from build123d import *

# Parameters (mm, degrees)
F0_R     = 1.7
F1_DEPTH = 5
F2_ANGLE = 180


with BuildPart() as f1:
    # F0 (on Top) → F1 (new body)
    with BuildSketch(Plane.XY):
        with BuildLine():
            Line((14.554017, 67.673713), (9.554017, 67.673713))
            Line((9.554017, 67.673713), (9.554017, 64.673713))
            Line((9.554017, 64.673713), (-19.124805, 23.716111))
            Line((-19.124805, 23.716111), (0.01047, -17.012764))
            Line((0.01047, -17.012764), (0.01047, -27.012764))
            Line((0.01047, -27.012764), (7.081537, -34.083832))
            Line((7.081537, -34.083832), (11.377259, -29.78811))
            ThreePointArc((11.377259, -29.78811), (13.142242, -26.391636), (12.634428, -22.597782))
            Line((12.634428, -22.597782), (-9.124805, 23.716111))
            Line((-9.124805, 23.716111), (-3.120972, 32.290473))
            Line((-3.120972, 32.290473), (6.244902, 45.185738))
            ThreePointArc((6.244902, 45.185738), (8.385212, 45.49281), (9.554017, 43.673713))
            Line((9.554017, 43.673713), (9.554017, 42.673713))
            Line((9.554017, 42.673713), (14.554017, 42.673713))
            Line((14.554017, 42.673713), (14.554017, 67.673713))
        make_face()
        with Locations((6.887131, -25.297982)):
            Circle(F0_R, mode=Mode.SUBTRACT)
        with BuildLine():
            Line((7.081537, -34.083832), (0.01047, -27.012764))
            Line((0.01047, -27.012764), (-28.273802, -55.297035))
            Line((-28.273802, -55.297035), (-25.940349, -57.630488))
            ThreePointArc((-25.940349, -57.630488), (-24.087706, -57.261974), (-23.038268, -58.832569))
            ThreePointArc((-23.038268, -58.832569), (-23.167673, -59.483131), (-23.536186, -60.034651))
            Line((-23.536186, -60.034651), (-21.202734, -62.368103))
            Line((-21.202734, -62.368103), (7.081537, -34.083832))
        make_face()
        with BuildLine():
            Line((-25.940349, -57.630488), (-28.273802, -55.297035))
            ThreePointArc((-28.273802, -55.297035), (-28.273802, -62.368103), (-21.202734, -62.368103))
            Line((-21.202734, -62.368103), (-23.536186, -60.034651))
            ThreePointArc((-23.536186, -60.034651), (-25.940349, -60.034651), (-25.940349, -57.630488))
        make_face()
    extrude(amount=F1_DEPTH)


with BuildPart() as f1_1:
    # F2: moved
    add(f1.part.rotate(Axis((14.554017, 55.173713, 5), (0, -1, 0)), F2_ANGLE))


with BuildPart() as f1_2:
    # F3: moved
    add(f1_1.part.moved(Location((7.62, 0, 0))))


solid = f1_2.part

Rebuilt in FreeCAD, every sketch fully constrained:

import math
import FreeCAD as App
import Part
import Sketcher

V = App.Vector
Q = App.Units.Quantity

doc = App.newDocument("Part")
body = doc.addObject("PartDesign::Body", "Body")

sketch1 = body.newObject("Sketcher::SketchObject", "Sketch")
sketch1.AttachmentSupport = (doc.getObject("XY_Plane"), [""])
sketch1.MapMode = "FlatFace"
sketch1.addGeometry([
    Part.LineSegment(V(14.554017, 67.673713, 0), V(9.554017, 67.673713, 0)),
    Part.LineSegment(V(9.554017, 67.673713, 0), V(9.554017, 64.673713, 0)),
    Part.LineSegment(V(9.554017, 64.673713, 0), V(-19.124805, 23.716111, 0)),
    Part.LineSegment(V(-19.124805, 23.716111, 0), V(0.01047, -17.012764, 0)),
    Part.LineSegment(V(0.01047, -17.012764, 0), V(0.01047, -27.012764, 0)),
    Part.LineSegment(V(0.01047, -27.012764, 0), V(-28.273802, -55.297035, 0)),
    Part.ArcOfCircle(Part.Circle(V(-24.738268, -58.832569, 0), V(0, 0, 1), 5), math.radians(135), math.radians(315)),
    Part.LineSegment(V(-21.202734, -62.368103, 0), V(11.377259, -29.78811, 0)),
    Part.ArcOfCircle(Part.Circle(V(6.887128, -25.297981, 0), V(0, 0, 1), 6.350003), math.radians(-44.999984), math.radians(25.165097)),
    Part.LineSegment(V(12.634428, -22.597782, 0), V(-9.124805, 23.716111, 0)),
    Part.LineSegment(V(-9.124805, 23.716111, 0), V(-3.120972, 32.290473, 0)),
    Part.LineSegment(V(-3.120972, 32.290473, 0), V(6.244902, 45.185738, 0)),
    Part.ArcOfCircle(Part.Circle(V(7.554016, 43.673712, 0), V(0, 0, 1), 2.000001), math.radians(0.000018), math.radians(130.886072)),
    Part.LineSegment(V(9.554017, 43.673713, 0), V(9.554017, 42.673713, 0)),
    Part.LineSegment(V(9.554017, 42.673713, 0), V(14.554017, 42.673713, 0)),
    Part.LineSegment(V(14.554017, 42.673713, 0), V(14.554017, 67.673713, 0)),
    Part.ArcOfCircle(Part.Circle(V(-24.738267, -58.832569, 0), V(0, 0, 1), 1.699999), math.radians(-0.000007), math.radians(135.000018)),
    Part.ArcOfCircle(Part.Circle(V(-24.738274, -58.832567, 0), V(0, 0, 1), 1.700006), math.radians(-44.999895), math.radians(-0.000051)),
    Part.ArcOfCircle(Part.Circle(V(-24.738267, -58.832569, 0), V(0, 0, 1), 1.7), math.radians(135), math.radians(315)),
    Part.Circle(V(6.887131, -25.297982, 0), V(0, 0, 1), 1.7),
], False)
sketch1.addConstraint([
    Sketcher.Constraint("Coincident", 0, 2, 1, 1),
    Sketcher.Constraint("Coincident", 1, 2, 2, 1),
    Sketcher.Constraint("Coincident", 2, 2, 3, 1),
    Sketcher.Constraint("Coincident", 3, 2, 4, 1),
    Sketcher.Constraint("Coincident", 4, 2, 5, 1),
    Sketcher.Constraint("Coincident", 5, 2, 6, 1),
    Sketcher.Constraint("Coincident", 6, 2, 7, 1),
    Sketcher.Constraint("Coincident", 7, 2, 8, 1),
    Sketcher.Constraint("Coincident", 8, 2, 9, 1),
    Sketcher.Constraint("Coincident", 9, 2, 10, 1),
    Sketcher.Constraint("Coincident", 10, 2, 11, 1),
    Sketcher.Constraint("Coincident", 11, 2, 12, 2),
    Sketcher.Constraint("Coincident", 12, 1, 13, 1),
    Sketcher.Constraint("Coincident", 13, 2, 14, 1),
    Sketcher.Constraint("Coincident", 14, 2, 15, 1),
    Sketcher.Constraint("Coincident", 15, 2, 0, 1),
    Sketcher.Constraint("Coincident", 16, 1, 17, 2),
    Sketcher.Constraint("Coincident", 17, 1, 18, 2),
    Sketcher.Constraint("Coincident", 18, 1, 16, 2),
    Sketcher.Constraint("Horizontal", 0),
    Sketcher.Constraint("Vertical", 1),
    Sketcher.Constraint("Vertical", 4),
    Sketcher.Constraint("Vertical", 13),
    Sketcher.Constraint("Horizontal", 14),
    Sketcher.Constraint("Vertical", 15),
    Sketcher.Constraint("Coincident", 16, 3, 6, 3),
    Sketcher.Constraint("Coincident", 17, 3, 6, 3),
    Sketcher.Constraint("Coincident", 19, 3, 8, 3),
    Sketcher.Constraint("Radius", 6, Q("5 mm")),
    Sketcher.Constraint("Radius", 12, Q("2.000001 mm")),
    Sketcher.Constraint("Diameter", 19, Q("3.4 mm")),
    Sketcher.Constraint("Radius", 16, Q("1.699999 mm")),
    Sketcher.Constraint("DistanceX", 0, 2, 0, 1, Q("5 mm")),
    Sketcher.Constraint("DistanceX", 14, 1, 14, 2, Q("5 mm")),
    Sketcher.Constraint("DistanceY", 1, 2, 1, 1, Q("3 mm")),
    Sketcher.Constraint("DistanceY", 4, 2, 4, 1, Q("10 mm")),
    Sketcher.Constraint("DistanceY", 13, 2, 13, 1, Q("1 mm")),
    Sketcher.Constraint("DistanceY", 15, 1, 15, 2, Q("25 mm")),
    Sketcher.Constraint("Distance", 2, Q("50 mm")),
    Sketcher.Constraint("Distance", 3, Q("45 mm")),
    Sketcher.Constraint("Distance", 5, Q("40 mm")),
    Sketcher.Constraint("DistanceY", 12, 3, 0, 2, Q("24.000001 mm")),
    Sketcher.Constraint("DistanceX", 2, 2, 9, 2, Q("10 mm")),
    Sketcher.Constraint("DistanceX", 18, 3, 16, 1, Q("1.699999 mm")),
    Sketcher.Constraint("Radius", 8, Q("6.350003 mm")),
    Sketcher.Constraint("DistanceX", 5, 2, -1, 1, Q("28.273802 mm")),
    Sketcher.Constraint("DistanceX", -1, 1, 11, 2, Q("6.244902 mm")),
    Sketcher.Constraint("DistanceX", 17, 3, 8, 3, Q("31.625401 mm")),
    Sketcher.Constraint("DistanceY", 2, 2, 12, 3, Q("19.957601 mm")),
    Sketcher.Constraint("DistanceY", 19, 3, 8, 2, Q("2.7002 mm")),
    Sketcher.Constraint("DistanceY", 9, 2, 12, 3, Q("19.957601 mm")),
    Sketcher.Constraint("Distance", 11, Q("15.937611 mm")),
    Sketcher.Constraint("DistanceX", 6, 3, -1, 1, Q("24.738268 mm")),
    Sketcher.Constraint("DistanceY", 6, 3, -1, 1, Q("58.832569 mm")),
    Sketcher.Constraint("DistanceY", 8, 3, -1, 1, Q("25.297981 mm")),
    Sketcher.Constraint("DistanceY", -1, 1, 2, 2, Q("23.716111 mm")),
    Sketcher.Constraint("DistanceX", -1, 1, 3, 2, Q("0.01047 mm")),
    Sketcher.Constraint("DistanceX", -1, 1, 7, 2, Q("11.377259 mm")),
    Sketcher.Constraint("DistanceY", 16, 1, -1, 1, Q("58.832569 mm")),
    Sketcher.Constraint("DistanceY", 17, 1, -1, 1, Q("60.034651 mm")),
    Sketcher.Constraint("DistanceX", 18, 1, -1, 1, Q("25.940349 mm")),
    Sketcher.Constraint("DistanceX", 17, 3, 6, 2, Q("3.53554 mm")),
    Sketcher.Constraint("DistanceY", 9, 2, 10, 2, Q("8.574362 mm")),
])
pad1 = body.newObject("PartDesign::Pad", "Pad")
pad1.Profile = sketch1
pad1.Length = 5
body2 = doc.addObject("PartDesign::Body", "Body001")
doc.recompute()

body.Placement = App.Placement(V(29.108034, 0, 10), App.Rotation(V(0, -1, 0), 180))
boolean = body2.newObject("PartDesign::Boolean", "Boolean")
boolean.Type = "Fuse"
boolean.addObjects([body])
body3 = doc.addObject("PartDesign::Body", "Body002")
doc.recompute()

body2.Placement = App.Placement(V(7.62, 0, 0), App.Rotation(V(0, 0, 1), 0))
boolean2 = body3.newObject("PartDesign::Boolean", "Boolean001")
boolean2.Type = "Fuse"
boolean2.addObjects([body2])

doc.recompute()
